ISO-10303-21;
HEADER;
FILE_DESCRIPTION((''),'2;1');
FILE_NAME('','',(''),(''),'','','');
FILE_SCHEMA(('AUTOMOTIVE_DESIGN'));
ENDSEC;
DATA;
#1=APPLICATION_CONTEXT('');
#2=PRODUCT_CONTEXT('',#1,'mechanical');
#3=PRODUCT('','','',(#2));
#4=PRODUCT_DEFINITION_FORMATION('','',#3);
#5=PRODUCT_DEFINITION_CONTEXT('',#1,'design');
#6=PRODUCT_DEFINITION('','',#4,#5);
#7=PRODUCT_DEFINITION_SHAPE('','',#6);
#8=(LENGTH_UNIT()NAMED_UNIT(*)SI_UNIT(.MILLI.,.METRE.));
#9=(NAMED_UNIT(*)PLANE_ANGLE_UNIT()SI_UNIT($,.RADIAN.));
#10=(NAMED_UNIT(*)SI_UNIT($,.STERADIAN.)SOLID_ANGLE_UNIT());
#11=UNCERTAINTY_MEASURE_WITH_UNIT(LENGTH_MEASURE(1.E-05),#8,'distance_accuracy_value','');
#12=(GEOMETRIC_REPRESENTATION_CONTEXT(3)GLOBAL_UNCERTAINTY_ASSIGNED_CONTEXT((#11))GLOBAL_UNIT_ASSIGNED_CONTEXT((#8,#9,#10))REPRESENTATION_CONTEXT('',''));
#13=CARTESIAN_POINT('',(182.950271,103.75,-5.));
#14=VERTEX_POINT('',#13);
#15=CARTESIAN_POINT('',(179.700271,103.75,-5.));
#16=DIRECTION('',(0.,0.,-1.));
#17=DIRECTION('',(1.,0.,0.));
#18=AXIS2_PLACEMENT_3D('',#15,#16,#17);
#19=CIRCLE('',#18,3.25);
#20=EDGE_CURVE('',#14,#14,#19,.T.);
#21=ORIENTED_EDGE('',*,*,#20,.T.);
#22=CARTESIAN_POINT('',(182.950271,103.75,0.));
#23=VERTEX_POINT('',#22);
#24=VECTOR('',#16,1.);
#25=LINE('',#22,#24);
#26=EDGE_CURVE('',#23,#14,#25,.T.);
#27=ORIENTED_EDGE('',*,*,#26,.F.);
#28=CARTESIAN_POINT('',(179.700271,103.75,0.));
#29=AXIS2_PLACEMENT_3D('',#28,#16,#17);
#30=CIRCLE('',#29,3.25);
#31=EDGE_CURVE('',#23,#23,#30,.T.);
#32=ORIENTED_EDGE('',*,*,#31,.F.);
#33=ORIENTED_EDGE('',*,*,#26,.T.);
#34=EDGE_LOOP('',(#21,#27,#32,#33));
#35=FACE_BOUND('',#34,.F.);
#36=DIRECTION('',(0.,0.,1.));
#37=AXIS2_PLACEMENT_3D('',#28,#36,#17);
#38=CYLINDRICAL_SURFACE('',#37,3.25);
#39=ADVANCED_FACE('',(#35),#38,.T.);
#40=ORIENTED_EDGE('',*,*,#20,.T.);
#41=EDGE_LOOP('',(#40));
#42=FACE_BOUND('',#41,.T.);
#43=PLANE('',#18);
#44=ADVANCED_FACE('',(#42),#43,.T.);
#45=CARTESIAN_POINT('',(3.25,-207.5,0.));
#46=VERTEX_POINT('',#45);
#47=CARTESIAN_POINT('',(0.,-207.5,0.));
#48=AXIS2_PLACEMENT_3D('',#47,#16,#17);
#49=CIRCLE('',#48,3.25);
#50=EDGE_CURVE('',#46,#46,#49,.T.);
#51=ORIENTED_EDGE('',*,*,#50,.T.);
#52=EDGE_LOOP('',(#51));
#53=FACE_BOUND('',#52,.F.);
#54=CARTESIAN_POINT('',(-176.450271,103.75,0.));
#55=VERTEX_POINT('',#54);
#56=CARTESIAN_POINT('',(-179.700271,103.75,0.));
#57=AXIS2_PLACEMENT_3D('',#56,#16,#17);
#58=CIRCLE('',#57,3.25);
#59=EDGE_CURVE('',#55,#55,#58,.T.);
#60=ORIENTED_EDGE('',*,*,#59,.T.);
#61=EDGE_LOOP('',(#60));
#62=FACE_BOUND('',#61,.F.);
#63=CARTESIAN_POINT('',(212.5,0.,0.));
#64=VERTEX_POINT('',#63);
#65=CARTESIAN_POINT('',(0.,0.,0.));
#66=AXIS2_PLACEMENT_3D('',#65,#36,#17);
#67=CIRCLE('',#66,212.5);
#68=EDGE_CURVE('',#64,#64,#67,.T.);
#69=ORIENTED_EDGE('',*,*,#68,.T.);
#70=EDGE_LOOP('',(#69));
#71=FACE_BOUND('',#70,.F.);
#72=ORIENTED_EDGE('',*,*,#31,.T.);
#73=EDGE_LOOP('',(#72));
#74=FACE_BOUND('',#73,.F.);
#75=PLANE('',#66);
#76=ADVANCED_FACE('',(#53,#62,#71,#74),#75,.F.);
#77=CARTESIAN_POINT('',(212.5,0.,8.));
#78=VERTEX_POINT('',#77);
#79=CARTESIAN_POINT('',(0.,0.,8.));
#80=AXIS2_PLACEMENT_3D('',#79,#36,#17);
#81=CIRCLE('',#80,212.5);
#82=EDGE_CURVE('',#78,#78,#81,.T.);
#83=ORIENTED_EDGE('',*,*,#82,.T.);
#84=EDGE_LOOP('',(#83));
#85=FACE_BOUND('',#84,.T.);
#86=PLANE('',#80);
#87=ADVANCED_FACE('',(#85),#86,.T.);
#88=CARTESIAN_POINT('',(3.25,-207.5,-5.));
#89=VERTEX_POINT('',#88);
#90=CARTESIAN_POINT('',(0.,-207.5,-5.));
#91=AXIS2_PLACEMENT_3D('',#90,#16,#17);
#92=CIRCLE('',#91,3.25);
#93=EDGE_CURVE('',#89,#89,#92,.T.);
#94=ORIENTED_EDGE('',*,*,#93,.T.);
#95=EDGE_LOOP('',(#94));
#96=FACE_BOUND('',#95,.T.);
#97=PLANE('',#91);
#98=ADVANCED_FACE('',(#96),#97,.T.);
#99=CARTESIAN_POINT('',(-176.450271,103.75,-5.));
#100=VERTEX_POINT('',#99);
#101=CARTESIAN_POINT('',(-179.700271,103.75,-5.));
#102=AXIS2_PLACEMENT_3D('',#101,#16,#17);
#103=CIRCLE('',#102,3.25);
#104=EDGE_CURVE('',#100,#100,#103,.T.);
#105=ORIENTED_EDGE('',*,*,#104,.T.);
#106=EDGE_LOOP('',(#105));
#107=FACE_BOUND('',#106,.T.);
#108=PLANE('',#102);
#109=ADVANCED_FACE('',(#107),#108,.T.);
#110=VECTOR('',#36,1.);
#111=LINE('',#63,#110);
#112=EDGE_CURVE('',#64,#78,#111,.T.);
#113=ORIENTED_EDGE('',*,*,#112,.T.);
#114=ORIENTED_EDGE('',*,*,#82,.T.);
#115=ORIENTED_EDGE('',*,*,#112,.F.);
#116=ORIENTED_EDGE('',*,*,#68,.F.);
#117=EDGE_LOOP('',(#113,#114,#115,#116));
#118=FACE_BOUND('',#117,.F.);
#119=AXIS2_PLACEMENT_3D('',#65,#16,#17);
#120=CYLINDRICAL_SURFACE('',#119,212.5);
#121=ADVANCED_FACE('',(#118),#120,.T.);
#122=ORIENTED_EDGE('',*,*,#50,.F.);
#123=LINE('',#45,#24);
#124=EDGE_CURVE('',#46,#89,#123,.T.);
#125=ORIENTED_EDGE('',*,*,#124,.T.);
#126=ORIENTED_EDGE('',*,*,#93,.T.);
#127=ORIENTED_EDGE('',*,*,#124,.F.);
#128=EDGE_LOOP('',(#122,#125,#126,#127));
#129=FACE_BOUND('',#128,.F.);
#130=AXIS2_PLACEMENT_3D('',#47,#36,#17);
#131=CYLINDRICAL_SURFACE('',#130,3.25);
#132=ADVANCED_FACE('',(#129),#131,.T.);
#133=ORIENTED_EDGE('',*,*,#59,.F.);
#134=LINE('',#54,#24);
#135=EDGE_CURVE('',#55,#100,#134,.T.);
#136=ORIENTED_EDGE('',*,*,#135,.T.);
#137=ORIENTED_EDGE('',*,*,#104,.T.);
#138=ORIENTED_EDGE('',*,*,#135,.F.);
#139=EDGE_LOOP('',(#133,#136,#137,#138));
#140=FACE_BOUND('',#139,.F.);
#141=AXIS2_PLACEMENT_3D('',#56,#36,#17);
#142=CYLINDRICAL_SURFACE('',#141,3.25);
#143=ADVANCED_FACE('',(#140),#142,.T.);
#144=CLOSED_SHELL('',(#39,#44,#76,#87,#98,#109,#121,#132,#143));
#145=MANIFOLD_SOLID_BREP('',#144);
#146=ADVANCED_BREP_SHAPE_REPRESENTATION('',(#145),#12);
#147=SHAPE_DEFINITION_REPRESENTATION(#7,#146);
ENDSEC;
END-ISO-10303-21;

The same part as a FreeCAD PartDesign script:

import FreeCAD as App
import Part
import Sketcher
Q = App.Units.Quantity

doc = App.newDocument("Part")
body = doc.addObject("PartDesign::Body", "Body")

# Sketch on XY plane
sketch1 = body.newObject("Sketcher::SketchObject", "Sketch")
sketch1.AttachmentSupport = (doc.getObject("XY_Plane"), [""])
sketch1.MapMode = "FlatFace"
sketch1.addGeometry(Part.Circle(App.Vector(0, 0, 0), App.Vector(0, 0, 1), 212), False)
sketch1.addConstraint([
    Sketcher.Constraint("Coincident", 0, 3, -1, 1),
    Sketcher.Constraint("Diameter", 0, Q("425 mm")),
])
pad1 = body.newObject("PartDesign::Pad", "Pad")
pad1.Profile = sketch1
pad1.Length = 8

# Sketch on XY plane
sketch2 = body.newObject("Sketcher::SketchObject", "Sketch001")
sketch2.AttachmentSupport = (doc.getObject("XY_Plane"), [""])
sketch2.MapMode = "FlatFace"
sketch2.addGeometry([
    Part.Circle(App.Vector(0, -207.5, 0), App.Vector(0, 0, 1), 3.2),
    Part.Circle(App.Vector(-179.7, 103.8, 0), App.Vector(0, 0, 1), 3.2),
    Part.Circle(App.Vector(179.7, 103.8, 0), App.Vector(0, 0, 1), 3.2),
], False)
sketch2.addConstraint([
    Sketcher.Constraint("Equal", 0, 1),
    Sketcher.Constraint("Equal", 1, 2),
    Sketcher.Constraint("Symmetric", 1, 3, 2, 3, -2),
    Sketcher.Constraint("PointOnObject", 0, 3, -2),
    Sketcher.Constraint("Diameter", 0, Q("6.5 mm")),
    Sketcher.Constraint("DistanceY", 0, 3, -1, 1, Q("207.5 mm")),
    Sketcher.Constraint("DistanceY", -1, 1, 1, 3, Q("103.75 mm")),
    Sketcher.Constraint("DistanceX", 1, 3, -1, 1, Q("179.700271 mm")),
])
pad2 = body.newObject("PartDesign::Pad", "Pad001")
pad2.Profile = sketch2
pad2.Length = 5
pad2.Reversed = True

doc.recompute()
